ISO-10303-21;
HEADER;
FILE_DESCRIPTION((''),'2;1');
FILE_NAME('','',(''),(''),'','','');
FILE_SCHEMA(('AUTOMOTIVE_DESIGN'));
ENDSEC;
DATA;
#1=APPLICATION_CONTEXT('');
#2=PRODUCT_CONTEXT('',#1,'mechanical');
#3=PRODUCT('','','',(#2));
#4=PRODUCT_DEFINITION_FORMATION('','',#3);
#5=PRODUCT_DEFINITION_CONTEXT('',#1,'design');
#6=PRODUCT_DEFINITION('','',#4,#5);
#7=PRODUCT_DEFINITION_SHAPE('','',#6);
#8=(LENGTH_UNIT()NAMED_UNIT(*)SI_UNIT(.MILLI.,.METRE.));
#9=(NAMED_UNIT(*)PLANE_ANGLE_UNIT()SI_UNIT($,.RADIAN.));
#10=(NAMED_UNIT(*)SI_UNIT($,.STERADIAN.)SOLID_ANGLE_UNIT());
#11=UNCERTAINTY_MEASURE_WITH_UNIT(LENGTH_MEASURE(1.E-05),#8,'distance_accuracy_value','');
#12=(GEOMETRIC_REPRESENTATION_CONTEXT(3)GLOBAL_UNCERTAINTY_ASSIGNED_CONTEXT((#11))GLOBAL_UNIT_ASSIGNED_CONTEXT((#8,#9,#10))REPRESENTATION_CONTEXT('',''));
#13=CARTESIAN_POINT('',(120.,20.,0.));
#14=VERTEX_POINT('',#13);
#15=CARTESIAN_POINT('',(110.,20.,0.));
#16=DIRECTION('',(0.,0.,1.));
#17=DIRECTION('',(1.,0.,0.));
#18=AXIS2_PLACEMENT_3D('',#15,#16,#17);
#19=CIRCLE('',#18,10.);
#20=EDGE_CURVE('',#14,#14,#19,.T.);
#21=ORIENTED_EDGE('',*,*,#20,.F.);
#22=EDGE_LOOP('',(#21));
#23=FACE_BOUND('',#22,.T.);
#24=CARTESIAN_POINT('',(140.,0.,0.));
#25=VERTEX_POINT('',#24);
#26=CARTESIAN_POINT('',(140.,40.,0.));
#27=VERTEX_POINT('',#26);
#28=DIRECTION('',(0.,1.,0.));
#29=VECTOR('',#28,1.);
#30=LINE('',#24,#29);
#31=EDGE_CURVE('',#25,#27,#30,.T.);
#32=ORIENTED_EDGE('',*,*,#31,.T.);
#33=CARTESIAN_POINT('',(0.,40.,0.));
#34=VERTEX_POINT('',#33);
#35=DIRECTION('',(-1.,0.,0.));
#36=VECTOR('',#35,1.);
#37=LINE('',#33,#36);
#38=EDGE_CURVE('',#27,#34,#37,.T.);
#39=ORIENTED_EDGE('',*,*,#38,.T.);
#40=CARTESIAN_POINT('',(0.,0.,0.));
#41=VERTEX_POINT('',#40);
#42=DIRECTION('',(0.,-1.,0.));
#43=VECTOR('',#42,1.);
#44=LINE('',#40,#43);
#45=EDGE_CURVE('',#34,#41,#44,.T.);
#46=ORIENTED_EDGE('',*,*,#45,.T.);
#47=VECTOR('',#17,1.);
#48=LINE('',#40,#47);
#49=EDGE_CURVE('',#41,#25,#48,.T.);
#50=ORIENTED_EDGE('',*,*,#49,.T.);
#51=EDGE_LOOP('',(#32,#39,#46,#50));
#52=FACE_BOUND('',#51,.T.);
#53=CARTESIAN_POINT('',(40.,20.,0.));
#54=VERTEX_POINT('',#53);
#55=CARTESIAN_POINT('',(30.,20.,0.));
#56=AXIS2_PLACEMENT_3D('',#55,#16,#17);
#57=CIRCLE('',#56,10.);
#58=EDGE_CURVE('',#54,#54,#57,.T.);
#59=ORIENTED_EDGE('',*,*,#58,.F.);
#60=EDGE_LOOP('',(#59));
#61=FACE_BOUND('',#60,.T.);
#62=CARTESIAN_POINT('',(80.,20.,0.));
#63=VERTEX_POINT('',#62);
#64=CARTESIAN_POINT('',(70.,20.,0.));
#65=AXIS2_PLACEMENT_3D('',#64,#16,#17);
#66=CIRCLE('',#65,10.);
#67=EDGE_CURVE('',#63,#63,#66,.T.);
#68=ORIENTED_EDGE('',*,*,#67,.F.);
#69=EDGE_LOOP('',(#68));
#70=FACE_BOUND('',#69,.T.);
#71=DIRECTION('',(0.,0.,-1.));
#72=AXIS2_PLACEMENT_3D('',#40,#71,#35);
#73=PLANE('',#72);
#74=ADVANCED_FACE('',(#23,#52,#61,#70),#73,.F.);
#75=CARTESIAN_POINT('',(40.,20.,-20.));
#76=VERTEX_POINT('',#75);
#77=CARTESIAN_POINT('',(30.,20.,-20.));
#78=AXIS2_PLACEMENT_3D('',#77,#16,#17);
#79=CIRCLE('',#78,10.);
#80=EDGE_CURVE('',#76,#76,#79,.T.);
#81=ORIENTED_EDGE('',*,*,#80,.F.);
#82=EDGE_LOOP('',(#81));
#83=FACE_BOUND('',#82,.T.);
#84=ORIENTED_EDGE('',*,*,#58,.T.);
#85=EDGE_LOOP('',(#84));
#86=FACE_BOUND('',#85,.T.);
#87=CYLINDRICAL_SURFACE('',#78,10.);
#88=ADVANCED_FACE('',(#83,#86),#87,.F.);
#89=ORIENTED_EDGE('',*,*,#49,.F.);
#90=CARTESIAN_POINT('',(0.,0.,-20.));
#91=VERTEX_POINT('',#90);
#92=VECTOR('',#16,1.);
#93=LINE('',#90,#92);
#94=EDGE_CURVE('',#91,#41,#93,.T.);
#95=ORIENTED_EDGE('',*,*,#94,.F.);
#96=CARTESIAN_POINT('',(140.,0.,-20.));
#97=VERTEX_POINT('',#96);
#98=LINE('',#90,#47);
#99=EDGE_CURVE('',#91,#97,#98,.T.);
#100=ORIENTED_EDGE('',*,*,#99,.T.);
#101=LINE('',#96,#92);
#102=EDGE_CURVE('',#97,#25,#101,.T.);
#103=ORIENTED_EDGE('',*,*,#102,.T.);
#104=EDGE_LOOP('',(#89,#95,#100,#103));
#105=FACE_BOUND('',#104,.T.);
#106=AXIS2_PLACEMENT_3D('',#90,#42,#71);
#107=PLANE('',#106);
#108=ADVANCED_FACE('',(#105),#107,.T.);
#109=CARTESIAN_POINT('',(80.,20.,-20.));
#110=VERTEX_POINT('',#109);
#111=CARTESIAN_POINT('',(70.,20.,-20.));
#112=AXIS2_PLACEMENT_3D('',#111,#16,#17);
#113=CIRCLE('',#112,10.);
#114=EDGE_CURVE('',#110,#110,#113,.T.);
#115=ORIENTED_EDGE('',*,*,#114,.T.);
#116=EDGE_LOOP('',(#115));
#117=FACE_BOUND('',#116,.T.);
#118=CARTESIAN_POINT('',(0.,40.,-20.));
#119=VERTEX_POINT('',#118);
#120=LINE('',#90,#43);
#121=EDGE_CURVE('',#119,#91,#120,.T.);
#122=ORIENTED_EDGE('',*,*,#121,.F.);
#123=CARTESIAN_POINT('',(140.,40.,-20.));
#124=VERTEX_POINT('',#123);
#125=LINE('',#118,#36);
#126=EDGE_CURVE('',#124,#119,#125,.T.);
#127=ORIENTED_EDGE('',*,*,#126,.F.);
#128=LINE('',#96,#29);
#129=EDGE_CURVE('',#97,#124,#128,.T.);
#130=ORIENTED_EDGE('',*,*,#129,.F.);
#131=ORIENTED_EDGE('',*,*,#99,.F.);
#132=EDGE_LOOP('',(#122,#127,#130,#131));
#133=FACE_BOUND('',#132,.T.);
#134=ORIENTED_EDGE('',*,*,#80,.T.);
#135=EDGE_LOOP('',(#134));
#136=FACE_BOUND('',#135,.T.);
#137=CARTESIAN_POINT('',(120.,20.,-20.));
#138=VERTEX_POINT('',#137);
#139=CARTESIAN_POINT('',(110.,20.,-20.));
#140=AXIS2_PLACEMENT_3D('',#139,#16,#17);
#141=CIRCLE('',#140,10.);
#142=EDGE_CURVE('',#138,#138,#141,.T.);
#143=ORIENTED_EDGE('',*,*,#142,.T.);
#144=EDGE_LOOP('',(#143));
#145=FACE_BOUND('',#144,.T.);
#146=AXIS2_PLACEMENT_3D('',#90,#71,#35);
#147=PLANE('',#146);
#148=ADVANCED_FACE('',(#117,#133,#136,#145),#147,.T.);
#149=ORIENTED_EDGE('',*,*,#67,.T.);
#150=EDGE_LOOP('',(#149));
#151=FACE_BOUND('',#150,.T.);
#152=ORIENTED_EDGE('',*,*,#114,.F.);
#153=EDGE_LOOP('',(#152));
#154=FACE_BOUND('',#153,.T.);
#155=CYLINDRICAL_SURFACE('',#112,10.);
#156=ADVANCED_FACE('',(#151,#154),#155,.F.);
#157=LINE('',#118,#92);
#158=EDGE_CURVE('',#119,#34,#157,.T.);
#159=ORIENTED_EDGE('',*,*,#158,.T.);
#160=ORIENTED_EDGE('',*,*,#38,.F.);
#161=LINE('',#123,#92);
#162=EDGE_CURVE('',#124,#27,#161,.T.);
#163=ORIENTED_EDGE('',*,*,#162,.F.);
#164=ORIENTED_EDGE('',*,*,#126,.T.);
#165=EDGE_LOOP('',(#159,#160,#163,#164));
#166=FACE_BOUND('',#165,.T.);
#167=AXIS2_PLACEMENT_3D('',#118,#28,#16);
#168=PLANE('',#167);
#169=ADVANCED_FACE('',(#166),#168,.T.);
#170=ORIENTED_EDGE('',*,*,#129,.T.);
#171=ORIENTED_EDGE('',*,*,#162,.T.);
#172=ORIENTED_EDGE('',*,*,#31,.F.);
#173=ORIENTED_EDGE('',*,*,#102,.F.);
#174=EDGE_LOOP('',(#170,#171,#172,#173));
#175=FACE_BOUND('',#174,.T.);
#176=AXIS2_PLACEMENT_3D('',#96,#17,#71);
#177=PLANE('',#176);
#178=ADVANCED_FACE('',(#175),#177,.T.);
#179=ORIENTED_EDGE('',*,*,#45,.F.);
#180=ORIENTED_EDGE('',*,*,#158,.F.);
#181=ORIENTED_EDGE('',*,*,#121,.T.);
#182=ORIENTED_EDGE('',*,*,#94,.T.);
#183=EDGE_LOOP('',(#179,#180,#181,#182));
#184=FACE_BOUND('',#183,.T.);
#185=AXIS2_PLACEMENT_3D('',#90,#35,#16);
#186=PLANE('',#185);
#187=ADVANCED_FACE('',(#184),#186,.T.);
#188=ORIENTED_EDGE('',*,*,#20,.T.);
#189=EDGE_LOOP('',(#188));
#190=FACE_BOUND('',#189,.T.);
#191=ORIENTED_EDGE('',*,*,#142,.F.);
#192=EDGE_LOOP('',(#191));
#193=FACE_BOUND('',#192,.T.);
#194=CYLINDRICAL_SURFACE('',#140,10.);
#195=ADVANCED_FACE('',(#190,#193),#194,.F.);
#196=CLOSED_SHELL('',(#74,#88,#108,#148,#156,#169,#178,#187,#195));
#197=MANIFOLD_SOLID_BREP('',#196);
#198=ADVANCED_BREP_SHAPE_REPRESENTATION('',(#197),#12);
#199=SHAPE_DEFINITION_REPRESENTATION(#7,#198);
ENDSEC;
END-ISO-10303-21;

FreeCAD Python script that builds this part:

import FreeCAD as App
import Part
import Sketcher
from FreeCAD import Vector

doc = App.newDocument("Part")
body = doc.addObject("PartDesign::Body", "Body")

sketch1 = body.newObject("Sketcher::SketchObject", "Sketch")
sketch1.AttachmentSupport = (doc.getObject("XY_Plane"), [""])
sketch1.MapMode = "FlatFace"
sketch1.addGeometry(Part.LineSegment(Vector(0, 40, 0), Vector(0, 0, 0)), False)
sketch1.addGeometry(Part.LineSegment(Vector(0, 0, 0), Vector(140, 0, 0)), False)
sketch1.addGeometry(Part.LineSegment(Vector(140, 0, 0), Vector(140, 40, 0)), False)
sketch1.addGeometry(Part.LineSegment(Vector(140, 40, 0), Vector(0, 40, 0)), False)
sketch1.addGeometry(Part.Circle(Vector(30, 20, 0), Vector(0, 0, 1), 10), False)
sketch1.addGeometry(Part.Circle(Vector(70, 20, 0), Vector(0, 0, 1), 10), False)
sketch1.addGeometry(Part.Circle(Vector(110, 20, 0), Vector(0, 0, 1), 10), False)
sketch1.addConstraint(Sketcher.Constraint("Coincident", 0, 2, 1, 1))
sketch1.addConstraint(Sketcher.Constraint("Coincident", 1, 2, 2, 1))
sketch1.addConstraint(Sketcher.Constraint("Coincident", 2, 2, 3, 1))
sketch1.addConstraint(Sketcher.Constraint("Coincident", 3, 2, 0, 1))
sketch1.addConstraint(Sketcher.Constraint("Vertical", 0))
sketch1.addConstraint(Sketcher.Constraint("Horizontal", 1))
sketch1.addConstraint(Sketcher.Constraint("Vertical", 2))
sketch1.addConstraint(Sketcher.Constraint("Horizontal", 3))
sketch1.addConstraint(Sketcher.Constraint("Coincident", 0, 2, -1, 1))
sketch1.addConstraint(Sketcher.Constraint("Equal", 4, 5))
sketch1.addConstraint(Sketcher.Constraint("Equal", 5, 6))
sketch1.addConstraint(Sketcher.Constraint("Horizontal", 4, 3, 5, 3))
sketch1.addConstraint(Sketcher.Constraint("Horizontal", 5, 3, 6, 3))
sketch1.addConstraint(Sketcher.Constraint("Diameter", 4, 20.0))
sketch1.addConstraint(Sketcher.Constraint("DistanceX", 1, 1, 1, 2, 140.0))
sketch1.addConstraint(Sketcher.Constraint("DistanceY", 0, 2, 0, 1, 40.0))
sketch1.addConstraint(Sketcher.Constraint("DistanceX", -1, 1, 4, 3, 30.0))
sketch1.addConstraint(Sketcher.Constraint("DistanceY", -1, 1, 4, 3, 20.0))
sketch1.addConstraint(Sketcher.Constraint("DistanceX", -1, 1, 5, 3, 70.0))
sketch1.addConstraint(Sketcher.Constraint("DistanceX", -1, 1, 6, 3, 110.0))
pad1 = body.newObject("PartDesign::Pad", "Pad")
pad1.Profile = sketch1
pad1.Length = 20
pad1.Reversed = True

doc.recompute()
